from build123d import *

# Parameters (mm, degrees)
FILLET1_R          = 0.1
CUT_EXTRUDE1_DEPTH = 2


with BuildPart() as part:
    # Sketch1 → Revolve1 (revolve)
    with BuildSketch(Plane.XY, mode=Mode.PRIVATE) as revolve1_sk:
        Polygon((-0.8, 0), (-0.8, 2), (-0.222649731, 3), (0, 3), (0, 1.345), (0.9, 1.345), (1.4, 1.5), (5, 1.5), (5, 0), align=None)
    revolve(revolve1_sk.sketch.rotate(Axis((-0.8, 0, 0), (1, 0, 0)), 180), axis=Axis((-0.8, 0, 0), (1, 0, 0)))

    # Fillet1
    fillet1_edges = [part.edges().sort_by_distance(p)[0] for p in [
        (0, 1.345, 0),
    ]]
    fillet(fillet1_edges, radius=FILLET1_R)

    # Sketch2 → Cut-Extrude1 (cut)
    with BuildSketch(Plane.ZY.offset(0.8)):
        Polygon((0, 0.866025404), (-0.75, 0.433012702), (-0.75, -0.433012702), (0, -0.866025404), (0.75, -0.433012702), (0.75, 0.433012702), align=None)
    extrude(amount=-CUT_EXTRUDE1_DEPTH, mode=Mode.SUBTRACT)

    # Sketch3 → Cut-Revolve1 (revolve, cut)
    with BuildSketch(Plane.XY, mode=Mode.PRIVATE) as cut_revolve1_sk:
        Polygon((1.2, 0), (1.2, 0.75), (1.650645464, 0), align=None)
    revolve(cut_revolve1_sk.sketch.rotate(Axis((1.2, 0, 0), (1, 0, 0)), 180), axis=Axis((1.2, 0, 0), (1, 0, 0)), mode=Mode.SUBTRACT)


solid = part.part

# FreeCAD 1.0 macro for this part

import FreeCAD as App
import Part
import Sketcher
from FreeCAD import Vector
Q = App.Units.Quantity


def edges_at(feature, points):
    """Names of the edges that pass closest to the given points."""
    edges = feature.Shape.Edges
    near = lambda p: min(range(len(edges)), key=lambda i: edges[i].distToShape(Part.Vertex(*p))[0])
    return sorted({f"Edge{near(p) + 1}" for p in points})

doc = App.newDocument("Part")
body = doc.addObject("PartDesign::Body", "Body")

# Sketch on XY plane
sketch1 = body.newObject("Sketcher::SketchObject", "Sketch")
sketch1.AttachmentSupport = (doc.getObject("XY_Plane"), [""])
sketch1.MapMode = "FlatFace"
sketch1.addGeometry([
    Part.LineSegment(Vector(-0.8, 2, 0), Vector(-0.8, 0, 0)),  # 0
    Part.LineSegment(Vector(-0.8, 0, 0), Vector(5, 0, 0)),  # 1
    Part.LineSegment(Vector(5, 0, 0), Vector(5, 1.5, 0)),  # 2
    Part.LineSegment(Vector(5, 1.5, 0), Vector(1.4, 1.5, 0)),  # 3
    Part.LineSegment(Vector(1.4, 1.5, 0), Vector(0.9, 1.34, 0)),  # 4
    Part.LineSegment(Vector(0.9, 1.34, 0), Vector(0, 1.34, 0)),  # 5
    Part.LineSegment(Vector(0, 1.34, 0), Vector(0, 3, 0)),  # 6
    Part.LineSegment(Vector(0, 3, 0), Vector(-0.22, 3, 0)),  # 7
    Part.LineSegment(Vector(-0.22, 3, 0), Vector(-0.8, 2, 0)),  # 8
], False)
sketch1.addConstraint([
    Sketcher.Constraint("Coincident", 0, 2, 1, 1),
    Sketcher.Constraint("Coincident", 1, 2, 2, 1),
    Sketcher.Constraint("Coincident", 2, 2, 3, 1),
    Sketcher.Constraint("Coincident", 3, 2, 4, 1),
    Sketcher.Constraint("Coincident", 4, 2, 5, 1),
    Sketcher.Constraint("Coincident", 5, 2, 6, 1),
    Sketcher.Constraint("Coincident", 6, 2, 7, 1),
    Sketcher.Constraint("Coincident", 7, 2, 8, 1),
    Sketcher.Constraint("Coincident", 8, 2, 0, 1),
    Sketcher.Constraint("Vertical", 0),
    Sketcher.Constraint("Horizontal", 1),
    Sketcher.Constraint("Vertical", 2),
    Sketcher.Constraint("Horizontal", 3),
    Sketcher.Constraint("Horizontal", 5),
    Sketcher.Constraint("Vertical", 6),
    Sketcher.Constraint("Horizontal", 7),
    Sketcher.Constraint("PointOnObject", 0, 2, -1),
    Sketcher.Constraint("PointOnObject", 5, 2, -2),
    Sketcher.Constraint("DistanceY", 0, 2, 0, 1, 2.0),
    Sketcher.Constraint("Angle", 8, Q("-120 deg")),
    Sketcher.Constraint("DistanceX", 1, 1, 1, 2, 5.8),
    Sketcher.Constraint("DistanceX", 3, 2, 3, 1, 3.6),
    Sketcher.Constraint("DistanceX", 5, 2, 5, 1, 0.9),
    Sketcher.Constraint("DistanceY", 2, 1, 2, 2, 1.5),
    Sketcher.Constraint("DistanceX", -1, 1, 1, 2, 5.0),
    Sketcher.Constraint("DistanceY", -1, 1, 6, 2, 3.0),
    Sketcher.Constraint("DistanceY", 6, 1, 6, 2, 1.655),
])
revolution = body.newObject("PartDesign::Revolution", "Revolution")
revolution.Profile = sketch1
revolution.ReferenceAxis = (sketch1, ["H_Axis"])
revolution.Angle = 360
doc.recompute()

fillet = body.newObject("PartDesign::Fillet", "Fillet")
fillet.Base = (revolution, edges_at(revolution, [(0, 1.345, 0)]))
fillet.Radius = 0.1

# Sketch on YZ plane
sketch2 = body.newObject("Sketcher::SketchObject", "Sketch001")
sketch2.AttachmentSupport = (doc.getObject("YZ_Plane"), [""])
sketch2.MapMode = "FlatFace"
sketch2.AttachmentOffset = App.Placement(Vector(0, 0, -0.8), App.Rotation())
sketch2.addGeometry([
    Part.LineSegment(Vector(0.9, 0, 0), Vector(0.4, -0.8, 0)),  # 0
    Part.LineSegment(Vector(0.4, -0.8, 0), Vector(-0.4, -0.8, 0)),  # 1
    Part.LineSegment(Vector(-0.4, -0.8, 0), Vector(-0.9, 0, 0)),  # 2
    Part.LineSegment(Vector(-0.9, 0, 0), Vector(-0.4, 0.8, 0)),  # 3
    Part.LineSegment(Vector(-0.4, 0.8, 0), Vector(0.4, 0.8, 0)),  # 4
    Part.LineSegment(Vector(0.4, 0.8, 0), Vector(0.9, 0, 0)),  # 5
], False)
sketch2.addConstraint([
    Sketcher.Constraint("Coincident", 0, 2, 1, 1),
    Sketcher.Constraint("Coincident", 1, 2, 2, 1),
    Sketcher.Constraint("Coincident", 2, 2, 3, 1),
    Sketcher.Constraint("Coincident", 3, 2, 4, 1),
    Sketcher.Constraint("Coincident", 4, 2, 5, 1),
    Sketcher.Constraint("Coincident", 5, 2, 0, 1),
    Sketcher.Constraint("Horizontal", 1),
    Sketcher.Constraint("Horizontal", 4),
    Sketcher.Constraint("Symmetric", 0, 2, 3, 2, -1, 1),
    Sketcher.Constraint("Symmetric", 2, 2, 5, 2, -1, 1),
    Sketcher.Constraint("PointOnObject", 2, 2, -1),
    Sketcher.Constraint("Parallel", 2, 5),
    Sketcher.Constraint("Vertical", 1, 2, 3, 2),
    Sketcher.Constraint("Angle", 0, Q("-120 deg")),
    Sketcher.Constraint("DistanceY", 1, 2, 3, 2, 1.5),
    Sketcher.Constraint("DistanceX", 1, 2, 1, 1, 0.866025),
])
pocket1 = body.newObject("PartDesign::Pocket", "Pocket")
pocket1.Profile = sketch2
pocket1.Length = 2
pocket1.Reversed = True

# Sketch on XY plane
sketch3 = body.newObject("Sketcher::SketchObject", "Sketch002")
sketch3.AttachmentSupport = (doc.getObject("XY_Plane"), [""])
sketch3.MapMode = "FlatFace"
sketch3.addGeometry([
    Part.LineSegment(Vector(1.2, 0.75, 0), Vector(1.2, 0, 0)),
    Part.LineSegment(Vector(1.2, 0, 0), Vector(1.65, 0, 0)),
    Part.LineSegment(Vector(1.65, 0, 0), Vector(1.2, 0.75, 0)),
], False)
sketch3.addConstraint([
    Sketcher.Constraint("Coincident", 0, 2, 1, 1),
    Sketcher.Constraint("Coincident", 1, 2, 2, 1),
    Sketcher.Constraint("Coincident", 2, 2, 0, 1),
    Sketcher.Constraint("Vertical", 0),
    Sketcher.Constraint("Horizontal", 1),
    Sketcher.Constraint("PointOnObject", 0, 2, -1),
    Sketcher.Constraint("Angle", 2, Q("121 deg")),
    Sketcher.Constraint("DistanceY", 0, 2, 0, 1, 0.75),
    Sketcher.Constraint("DistanceX", -1, 1, 0, 2, 1.2),
])
groove = body.newObject("PartDesign::Groove", "Groove")
groove.Profile = sketch3
groove.ReferenceAxis = (sketch3, ["H_Axis"])
groove.Angle = 360

doc.recompute()
